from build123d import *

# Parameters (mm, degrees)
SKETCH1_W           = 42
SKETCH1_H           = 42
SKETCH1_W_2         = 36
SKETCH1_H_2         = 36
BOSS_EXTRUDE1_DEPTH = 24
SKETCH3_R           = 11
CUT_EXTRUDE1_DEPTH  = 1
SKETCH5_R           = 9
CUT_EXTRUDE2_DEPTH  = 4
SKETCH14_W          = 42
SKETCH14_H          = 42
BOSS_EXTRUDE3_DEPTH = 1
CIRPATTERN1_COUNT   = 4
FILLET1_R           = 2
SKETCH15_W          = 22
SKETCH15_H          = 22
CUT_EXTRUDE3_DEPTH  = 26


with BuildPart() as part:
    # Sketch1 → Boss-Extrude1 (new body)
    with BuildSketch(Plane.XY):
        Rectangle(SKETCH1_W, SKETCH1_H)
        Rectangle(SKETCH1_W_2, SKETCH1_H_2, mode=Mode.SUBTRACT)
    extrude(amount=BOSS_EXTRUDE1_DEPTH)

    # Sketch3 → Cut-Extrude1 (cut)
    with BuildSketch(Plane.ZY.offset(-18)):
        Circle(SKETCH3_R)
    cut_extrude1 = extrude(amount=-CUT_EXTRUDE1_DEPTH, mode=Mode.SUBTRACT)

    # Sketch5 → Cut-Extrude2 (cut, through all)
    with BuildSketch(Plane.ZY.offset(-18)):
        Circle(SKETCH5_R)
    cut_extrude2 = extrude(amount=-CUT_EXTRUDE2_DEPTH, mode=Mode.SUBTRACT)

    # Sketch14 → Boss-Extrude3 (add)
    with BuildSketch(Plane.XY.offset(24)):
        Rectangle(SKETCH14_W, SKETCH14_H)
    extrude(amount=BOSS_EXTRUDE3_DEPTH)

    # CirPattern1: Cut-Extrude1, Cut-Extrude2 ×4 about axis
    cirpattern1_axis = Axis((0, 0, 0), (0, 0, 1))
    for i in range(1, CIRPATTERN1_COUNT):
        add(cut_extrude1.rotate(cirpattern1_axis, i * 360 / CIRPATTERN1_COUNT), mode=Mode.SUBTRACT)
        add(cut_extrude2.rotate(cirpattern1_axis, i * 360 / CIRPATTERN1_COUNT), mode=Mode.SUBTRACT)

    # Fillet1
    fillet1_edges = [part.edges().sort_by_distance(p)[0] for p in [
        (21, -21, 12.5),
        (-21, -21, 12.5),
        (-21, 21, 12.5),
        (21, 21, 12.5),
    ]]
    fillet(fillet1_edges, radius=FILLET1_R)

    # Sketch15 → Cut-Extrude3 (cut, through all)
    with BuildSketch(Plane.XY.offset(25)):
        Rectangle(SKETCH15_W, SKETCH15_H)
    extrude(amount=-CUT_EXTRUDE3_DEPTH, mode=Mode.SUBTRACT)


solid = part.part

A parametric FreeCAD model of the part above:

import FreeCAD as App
import Part
import Sketcher


def edges_at(feature, points):
    """Names of the edges that pass closest to the given points."""
    edges = feature.Shape.Edges
    near = lambda p: min(range(len(edges)), key=lambda i: edges[i].distToShape(Part.Vertex(*p))[0])
    return sorted({f"Edge{near(p) + 1}" for p in points})


def add_polygon(sketch, points):
    """Adds a closed chain of lines whose ends are joined by coincident constraints."""
    first, n = sketch.GeometryCount, len(points)
    for a, b in zip(points, points[1:] + points[:1]):
        sketch.addGeometry(Part.LineSegment(App.Vector(*a, 0), App.Vector(*b, 0)), False)
    for i in range(n):
        sketch.addConstraint(Sketcher.Constraint("Coincident", first + i, 2, first + (i + 1) % n, 1))

doc = App.newDocument("Part")
body = doc.addObject("PartDesign::Body", "Body")

# Sketch on XY plane
sketch1 = body.newObject("Sketcher::SketchObject", "Sketch")
sketch1.AttachmentSupport = (doc.getObject("XY_Plane"), [""])
sketch1.MapMode = "FlatFace"
add_polygon(sketch1, [(-21, 21), (-21, -21), (21, -21), (21, 21)])  # lines 0-3
add_polygon(sketch1, [(18, -18), (-18, -18), (-18, 18), (18, 18)])  # lines 4-7
sketch1.addConstraint(Sketcher.Constraint("Vertical", 0))
sketch1.addConstraint(Sketcher.Constraint("Horizontal", 1))
sketch1.addConstraint(Sketcher.Constraint("Vertical", 2))
sketch1.addConstraint(Sketcher.Constraint("Horizontal", 3))
sketch1.addConstraint(Sketcher.Constraint("Horizontal", 4))
sketch1.addConstraint(Sketcher.Constraint("Vertical", 5))
sketch1.addConstraint(Sketcher.Constraint("Horizontal", 6))
sketch1.addConstraint(Sketcher.Constraint("Vertical", 7))
sketch1.addConstraint(Sketcher.Constraint("Symmetric", 0, 2, 2, 2, -1, 1))
sketch1.addConstraint(Sketcher.Constraint("Symmetric", 4, 2, 6, 2, -1, 1))
sketch1.addConstraint(Sketcher.Constraint("Equal", 3, 0))
sketch1.addConstraint(Sketcher.Constraint("Equal", 6, 5))
sketch1.addConstraint(Sketcher.Constraint("DistanceX", 1, 1, 1, 2, 42.0))
sketch1.addConstraint(Sketcher.Constraint("DistanceX", 4, 2, 4, 1, 36.0))
pad1 = body.newObject("PartDesign::Pad", "Pad")
pad1.Profile = sketch1
pad1.Length = 24

# Sketch on YZ plane
sketch2 = body.newObject("Sketcher::SketchObject", "Sketch001")
sketch2.AttachmentSupport = (doc.getObject("YZ_Plane"), [""])
sketch2.MapMode = "FlatFace"
sketch2.AttachmentOffset = App.Placement(App.Vector(0, 0, 18), App.Rotation())
sketch2.addGeometry(Part.Circle(App.Vector(0, 0, 0), App.Vector(0, 0, 1), 11), False)
sketch2.addConstraint(Sketcher.Constraint("Coincident", 0, 3, -1, 1))
sketch2.addConstraint(Sketcher.Constraint("Diameter", 0, 22.0))
pocket1 = body.newObject("PartDesign::Pocket", "Pocket")
pocket1.Profile = sketch2
pocket1.Length = 1
pocket1.Reversed = True

# Sketch on YZ plane
sketch3 = body.newObject("Sketcher::SketchObject", "Sketch002")
sketch3.AttachmentSupport = (doc.getObject("YZ_Plane"), [""])
sketch3.MapMode = "FlatFace"
sketch3.AttachmentOffset = App.Placement(App.Vector(0, 0, 18), App.Rotation())
sketch3.addGeometry(Part.Circle(App.Vector(0, 0, 0), App.Vector(0, 0, 1), 9), False)
sketch3.addConstraint(Sketcher.Constraint("Coincident", 0, 3, -1, 1))
sketch3.addConstraint(Sketcher.Constraint("Diameter", 0, 18.0))
pocket2 = body.newObject("PartDesign::Pocket", "Pocket001")
pocket2.Profile = sketch3
pocket2.Type = "ThroughAll"
pocket2.Reversed = True

# Sketch on XY plane
sketch4 = body.newObject("Sketcher::SketchObject", "Sketch003")
sketch4.AttachmentSupport = (doc.getObject("XY_Plane"), [""])
sketch4.MapMode = "FlatFace"
sketch4.AttachmentOffset = App.Placement(App.Vector(0, 0, 24), App.Rotation())
add_polygon(sketch4, [(-21, 21), (-21, -21), (21, -21), (21, 21)])  # lines 0-3
sketch4.addConstraint(Sketcher.Constraint("Vertical", 0))
sketch4.addConstraint(Sketcher.Constraint("Horizontal", 1))
sketch4.addConstraint(Sketcher.Constraint("Vertical", 2))
sketch4.addConstraint(Sketcher.Constraint("Horizontal", 3))
sketch4.addConstraint(Sketcher.Constraint("Symmetric", 0, 2, 2, 2, -1, 1))
sketch4.addConstraint(Sketcher.Constraint("Equal", 3, 0))
sketch4.addConstraint(Sketcher.Constraint("DistanceX", 1, 1, 1, 2, 42.0))
pad2 = body.newObject("PartDesign::Pad", "Pad001")
pad2.Profile = sketch4
pad2.Length = 1
doc.recompute()

polarpattern = body.newObject("PartDesign::PolarPattern", "PolarPattern")
polarpattern.Originals = [pocket1, pocket2]
polarpattern.Axis = (doc.getObject("Z_Axis"), [""])
polarpattern.Angle = 360
polarpattern.Occurrences = 4
body.Tip = polarpattern
doc.recompute()

fillet = body.newObject("PartDesign::Fillet", "Fillet")
fillet.Base = (polarpattern, edges_at(polarpattern, [
    (21, -21, 12.5),
    (-21, -21, 12.5),
    (-21, 21, 12.5),
    (21, 21, 12.5),
]))
fillet.Radius = 2

# Sketch on XY plane
sketch5 = body.newObject("Sketcher::SketchObject", "Sketch004")
sketch5.AttachmentSupport = (doc.getObject("XY_Plane"), [""])
sketch5.MapMode = "FlatFace"
sketch5.AttachmentOffset = App.Placement(App.Vector(0, 0, 25), App.Rotation())
add_polygon(sketch5, [(-11, 11), (-11, -11), (11, -11), (11, 11)])  # lines 0-3
sketch5.addConstraint(Sketcher.Constraint("Vertical", 0))
sketch5.addConstraint(Sketcher.Constraint("Horizontal", 1))
sketch5.addConstraint(Sketcher.Constraint("Vertical", 2))
sketch5.addConstraint(Sketcher.Constraint("Horizontal", 3))
sketch5.addConstraint(Sketcher.Constraint("Symmetric", 0, 2, 2, 2, -1, 1))
sketch5.addConstraint(Sketcher.Constraint("Equal", 3, 0))
sketch5.addConstraint(Sketcher.Constraint("DistanceX", 1, 1, 1, 2, 22.0))
pocket3 = body.newObject("PartDesign::Pocket", "Pocket002")
pocket3.Profile = sketch5
pocket3.Type = "ThroughAll"

doc.recompute()
